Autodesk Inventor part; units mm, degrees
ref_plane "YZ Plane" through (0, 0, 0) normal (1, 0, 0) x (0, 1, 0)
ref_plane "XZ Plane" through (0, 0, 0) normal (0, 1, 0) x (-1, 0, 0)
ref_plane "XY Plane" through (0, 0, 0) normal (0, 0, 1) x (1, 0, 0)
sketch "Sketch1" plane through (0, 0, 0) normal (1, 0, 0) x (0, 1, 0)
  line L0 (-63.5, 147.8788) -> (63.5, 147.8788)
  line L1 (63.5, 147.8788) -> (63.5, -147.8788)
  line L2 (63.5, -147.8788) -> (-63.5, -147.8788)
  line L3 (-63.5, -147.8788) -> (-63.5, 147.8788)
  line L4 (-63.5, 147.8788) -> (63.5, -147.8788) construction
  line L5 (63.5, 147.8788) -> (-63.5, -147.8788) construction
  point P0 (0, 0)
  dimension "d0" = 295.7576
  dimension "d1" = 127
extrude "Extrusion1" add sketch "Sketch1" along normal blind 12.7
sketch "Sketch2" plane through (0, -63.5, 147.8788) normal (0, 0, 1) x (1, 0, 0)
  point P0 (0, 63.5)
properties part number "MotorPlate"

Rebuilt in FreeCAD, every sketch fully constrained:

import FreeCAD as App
import Part
import Sketcher

V = App.Vector
Q = App.Units.Quantity

doc = App.newDocument("Part")
body = doc.addObject("PartDesign::Body", "Body")

# Sketch on YZ plane
sketch1 = body.newObject("Sketcher::SketchObject", "Sketch")
sketch1.AttachmentSupport = (doc.getObject("YZ_Plane"), [""])
sketch1.MapMode = "FlatFace"
sketch1.addGeometry([
    Part.LineSegment(V(64, 148, 0), V(-64, 148, 0)),
    Part.LineSegment(V(-64, 148, 0), V(-64, -148, 0)),
    Part.LineSegment(V(-64, -148, 0), V(64, -148, 0)),
    Part.LineSegment(V(64, -148, 0), V(64, 148, 0)),
], False)
sketch1.addConstraint([
    Sketcher.Constraint("Coincident", 0, 2, 1, 1),
    Sketcher.Constraint("Coincident", 1, 2, 2, 1),
    Sketcher.Constraint("Coincident", 2, 2, 3, 1),
    Sketcher.Constraint("Coincident", 3, 2, 0, 1),
    Sketcher.Constraint("Horizontal", 0),
    Sketcher.Constraint("Vertical", 1),
    Sketcher.Constraint("Horizontal", 2),
    Sketcher.Constraint("Vertical", 3),
    Sketcher.Constraint("Symmetric", 0, 2, 2, 2, -1, 1),
    Sketcher.Constraint("DistanceX", 0, 2, 0, 1, Q("5 in")),
    Sketcher.Constraint("DistanceY", 1, 2, 1, 1, Q("11.644 in")),
])
pad1 = body.newObject("PartDesign::Pad", "Pad")
pad1.Profile = sketch1
pad1.Length = Q("0.5 in")

doc.recompute()
